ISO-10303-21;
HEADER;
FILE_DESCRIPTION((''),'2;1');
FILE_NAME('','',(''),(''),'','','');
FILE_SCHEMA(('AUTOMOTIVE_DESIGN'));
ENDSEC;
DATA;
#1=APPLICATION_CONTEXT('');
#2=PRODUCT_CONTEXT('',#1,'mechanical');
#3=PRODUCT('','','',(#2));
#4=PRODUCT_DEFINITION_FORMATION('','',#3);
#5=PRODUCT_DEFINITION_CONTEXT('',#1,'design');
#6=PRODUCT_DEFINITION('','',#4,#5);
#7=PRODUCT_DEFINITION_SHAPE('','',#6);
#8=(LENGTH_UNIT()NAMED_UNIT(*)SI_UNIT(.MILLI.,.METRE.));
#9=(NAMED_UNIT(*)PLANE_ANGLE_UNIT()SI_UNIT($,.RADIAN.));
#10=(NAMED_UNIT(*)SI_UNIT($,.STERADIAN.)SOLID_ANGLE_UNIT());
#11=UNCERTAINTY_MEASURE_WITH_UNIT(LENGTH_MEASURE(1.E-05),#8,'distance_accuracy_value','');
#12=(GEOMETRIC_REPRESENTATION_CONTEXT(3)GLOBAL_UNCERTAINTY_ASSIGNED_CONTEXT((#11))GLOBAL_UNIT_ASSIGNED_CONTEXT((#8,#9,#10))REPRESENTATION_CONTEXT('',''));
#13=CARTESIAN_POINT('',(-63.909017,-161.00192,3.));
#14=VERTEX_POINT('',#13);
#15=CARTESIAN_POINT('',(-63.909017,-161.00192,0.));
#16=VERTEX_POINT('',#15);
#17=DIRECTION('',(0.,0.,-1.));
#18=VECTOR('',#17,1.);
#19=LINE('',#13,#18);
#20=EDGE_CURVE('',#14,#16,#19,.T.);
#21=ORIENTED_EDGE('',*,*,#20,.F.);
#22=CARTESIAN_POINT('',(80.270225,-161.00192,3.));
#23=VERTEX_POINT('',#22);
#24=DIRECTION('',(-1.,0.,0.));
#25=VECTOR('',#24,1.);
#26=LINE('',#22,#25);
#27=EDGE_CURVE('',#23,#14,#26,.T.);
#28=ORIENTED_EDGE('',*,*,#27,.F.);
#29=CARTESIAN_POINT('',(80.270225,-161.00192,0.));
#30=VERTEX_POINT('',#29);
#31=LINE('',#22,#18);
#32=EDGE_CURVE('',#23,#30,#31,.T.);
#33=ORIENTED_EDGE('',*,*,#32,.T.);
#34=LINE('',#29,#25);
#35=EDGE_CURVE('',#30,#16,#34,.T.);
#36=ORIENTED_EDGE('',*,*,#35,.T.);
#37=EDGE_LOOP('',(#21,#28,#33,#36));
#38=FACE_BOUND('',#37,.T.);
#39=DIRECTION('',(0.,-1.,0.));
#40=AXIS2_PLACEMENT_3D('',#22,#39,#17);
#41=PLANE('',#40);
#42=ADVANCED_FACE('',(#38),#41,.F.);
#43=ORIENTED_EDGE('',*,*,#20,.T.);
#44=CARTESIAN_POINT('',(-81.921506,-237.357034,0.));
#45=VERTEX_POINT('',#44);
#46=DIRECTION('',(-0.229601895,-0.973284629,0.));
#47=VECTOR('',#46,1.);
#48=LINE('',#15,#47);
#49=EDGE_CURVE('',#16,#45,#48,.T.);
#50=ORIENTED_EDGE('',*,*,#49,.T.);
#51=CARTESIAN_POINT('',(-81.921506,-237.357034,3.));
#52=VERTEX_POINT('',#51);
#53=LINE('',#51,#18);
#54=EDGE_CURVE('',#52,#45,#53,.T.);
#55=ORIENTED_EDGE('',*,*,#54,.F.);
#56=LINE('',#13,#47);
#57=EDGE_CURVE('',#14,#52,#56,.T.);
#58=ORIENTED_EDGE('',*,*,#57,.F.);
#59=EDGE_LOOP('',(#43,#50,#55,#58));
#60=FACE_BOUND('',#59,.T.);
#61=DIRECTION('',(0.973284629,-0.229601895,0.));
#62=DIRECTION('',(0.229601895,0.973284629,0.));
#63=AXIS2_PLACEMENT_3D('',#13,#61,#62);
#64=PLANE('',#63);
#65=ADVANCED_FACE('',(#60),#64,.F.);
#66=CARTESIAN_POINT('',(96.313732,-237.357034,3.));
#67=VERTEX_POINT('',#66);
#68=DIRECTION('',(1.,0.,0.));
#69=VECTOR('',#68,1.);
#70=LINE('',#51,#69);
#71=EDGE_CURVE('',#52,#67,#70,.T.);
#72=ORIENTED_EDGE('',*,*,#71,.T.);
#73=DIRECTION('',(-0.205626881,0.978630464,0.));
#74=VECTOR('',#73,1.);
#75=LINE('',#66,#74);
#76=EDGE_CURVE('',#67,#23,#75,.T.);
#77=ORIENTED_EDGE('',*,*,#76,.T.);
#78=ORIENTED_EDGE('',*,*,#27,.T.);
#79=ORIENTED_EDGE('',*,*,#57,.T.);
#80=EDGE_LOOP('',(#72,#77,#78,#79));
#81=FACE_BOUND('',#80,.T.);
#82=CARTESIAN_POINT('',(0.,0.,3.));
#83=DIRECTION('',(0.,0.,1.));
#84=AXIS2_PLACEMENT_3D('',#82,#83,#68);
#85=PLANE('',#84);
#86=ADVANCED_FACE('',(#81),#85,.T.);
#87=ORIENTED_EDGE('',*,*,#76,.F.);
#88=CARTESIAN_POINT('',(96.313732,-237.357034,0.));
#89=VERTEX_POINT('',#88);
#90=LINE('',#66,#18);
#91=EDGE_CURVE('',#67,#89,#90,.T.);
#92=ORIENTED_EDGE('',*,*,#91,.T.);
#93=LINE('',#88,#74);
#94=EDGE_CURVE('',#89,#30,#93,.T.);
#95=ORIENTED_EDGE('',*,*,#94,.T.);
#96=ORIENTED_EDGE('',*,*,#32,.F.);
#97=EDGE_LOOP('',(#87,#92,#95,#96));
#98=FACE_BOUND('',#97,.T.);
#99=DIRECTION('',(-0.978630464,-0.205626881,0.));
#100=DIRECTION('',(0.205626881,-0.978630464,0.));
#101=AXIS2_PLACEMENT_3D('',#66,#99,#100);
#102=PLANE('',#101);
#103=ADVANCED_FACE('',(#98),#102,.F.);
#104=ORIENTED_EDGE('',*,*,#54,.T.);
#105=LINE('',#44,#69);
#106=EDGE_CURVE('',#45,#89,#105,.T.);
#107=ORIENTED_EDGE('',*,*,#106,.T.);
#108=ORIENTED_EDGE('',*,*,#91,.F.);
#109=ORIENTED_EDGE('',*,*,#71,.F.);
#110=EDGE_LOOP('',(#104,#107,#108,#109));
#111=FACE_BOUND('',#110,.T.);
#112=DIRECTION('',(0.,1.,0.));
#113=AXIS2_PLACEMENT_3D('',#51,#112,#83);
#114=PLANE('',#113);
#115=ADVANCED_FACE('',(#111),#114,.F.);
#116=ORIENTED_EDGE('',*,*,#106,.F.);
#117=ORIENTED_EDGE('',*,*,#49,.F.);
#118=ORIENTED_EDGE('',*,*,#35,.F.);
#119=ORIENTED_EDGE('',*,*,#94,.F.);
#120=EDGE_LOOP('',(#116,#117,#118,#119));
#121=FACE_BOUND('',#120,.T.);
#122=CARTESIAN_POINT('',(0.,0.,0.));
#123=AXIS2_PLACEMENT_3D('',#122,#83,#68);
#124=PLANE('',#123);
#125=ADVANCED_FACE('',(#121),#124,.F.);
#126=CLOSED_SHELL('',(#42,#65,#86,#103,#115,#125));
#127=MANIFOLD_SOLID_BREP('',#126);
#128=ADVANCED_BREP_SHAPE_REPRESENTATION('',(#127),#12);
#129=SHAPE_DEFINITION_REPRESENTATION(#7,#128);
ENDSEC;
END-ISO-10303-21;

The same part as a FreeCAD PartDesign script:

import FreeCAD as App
import Part
import Sketcher


def add_polygon(sketch, points):
    """Adds a closed chain of lines whose ends are joined by coincident constraints."""
    first, n = sketch.GeometryCount, len(points)
    for a, b in zip(points, points[1:] + points[:1]):
        sketch.addGeometry(Part.LineSegment(App.Vector(*a, 0), App.Vector(*b, 0)), False)
    for i in range(n):
        sketch.addConstraint(Sketcher.Constraint("Coincident", first + i, 2, first + (i + 1) % n, 1))

doc = App.newDocument("Part")
body = doc.addObject("PartDesign::Body", "Body")

# Sketch on XY plane
sketch1 = body.newObject("Sketcher::SketchObject", "Sketch")
sketch1.AttachmentSupport = (doc.getObject("XY_Plane"), [""])
sketch1.MapMode = "FlatFace"
add_polygon(sketch1, [(96, -237), (80, -161), (-64, -161), (-82, -237)])  # lines 0-3
sketch1.addConstraint(Sketcher.Constraint("Horizontal", 1))
sketch1.addConstraint(Sketcher.Constraint("Horizontal", 3))
sketch1.addConstraint(Sketcher.Constraint("Distance", 2, 78.450961))
sketch1.addConstraint(Sketcher.Constraint("DistanceX", 1, 2, 1, 1, 144.179242))
sketch1.addConstraint(Sketcher.Constraint("DistanceX", 3, 1, 3, 2, 178.235237))
sketch1.addConstraint(Sketcher.Constraint("DistanceY", 0, 2, -1, 1, 161.00192))
sketch1.addConstraint(Sketcher.Constraint("DistanceX", -1, 1, 3, 2, 96.313732))
sketch1.addConstraint(Sketcher.Constraint("DistanceX", 2, 2, 1, 2, 18.012489))
pad1 = body.newObject("PartDesign::Pad", "Pad")
pad1.Profile = sketch1
pad1.Length = 3

doc.recompute()
